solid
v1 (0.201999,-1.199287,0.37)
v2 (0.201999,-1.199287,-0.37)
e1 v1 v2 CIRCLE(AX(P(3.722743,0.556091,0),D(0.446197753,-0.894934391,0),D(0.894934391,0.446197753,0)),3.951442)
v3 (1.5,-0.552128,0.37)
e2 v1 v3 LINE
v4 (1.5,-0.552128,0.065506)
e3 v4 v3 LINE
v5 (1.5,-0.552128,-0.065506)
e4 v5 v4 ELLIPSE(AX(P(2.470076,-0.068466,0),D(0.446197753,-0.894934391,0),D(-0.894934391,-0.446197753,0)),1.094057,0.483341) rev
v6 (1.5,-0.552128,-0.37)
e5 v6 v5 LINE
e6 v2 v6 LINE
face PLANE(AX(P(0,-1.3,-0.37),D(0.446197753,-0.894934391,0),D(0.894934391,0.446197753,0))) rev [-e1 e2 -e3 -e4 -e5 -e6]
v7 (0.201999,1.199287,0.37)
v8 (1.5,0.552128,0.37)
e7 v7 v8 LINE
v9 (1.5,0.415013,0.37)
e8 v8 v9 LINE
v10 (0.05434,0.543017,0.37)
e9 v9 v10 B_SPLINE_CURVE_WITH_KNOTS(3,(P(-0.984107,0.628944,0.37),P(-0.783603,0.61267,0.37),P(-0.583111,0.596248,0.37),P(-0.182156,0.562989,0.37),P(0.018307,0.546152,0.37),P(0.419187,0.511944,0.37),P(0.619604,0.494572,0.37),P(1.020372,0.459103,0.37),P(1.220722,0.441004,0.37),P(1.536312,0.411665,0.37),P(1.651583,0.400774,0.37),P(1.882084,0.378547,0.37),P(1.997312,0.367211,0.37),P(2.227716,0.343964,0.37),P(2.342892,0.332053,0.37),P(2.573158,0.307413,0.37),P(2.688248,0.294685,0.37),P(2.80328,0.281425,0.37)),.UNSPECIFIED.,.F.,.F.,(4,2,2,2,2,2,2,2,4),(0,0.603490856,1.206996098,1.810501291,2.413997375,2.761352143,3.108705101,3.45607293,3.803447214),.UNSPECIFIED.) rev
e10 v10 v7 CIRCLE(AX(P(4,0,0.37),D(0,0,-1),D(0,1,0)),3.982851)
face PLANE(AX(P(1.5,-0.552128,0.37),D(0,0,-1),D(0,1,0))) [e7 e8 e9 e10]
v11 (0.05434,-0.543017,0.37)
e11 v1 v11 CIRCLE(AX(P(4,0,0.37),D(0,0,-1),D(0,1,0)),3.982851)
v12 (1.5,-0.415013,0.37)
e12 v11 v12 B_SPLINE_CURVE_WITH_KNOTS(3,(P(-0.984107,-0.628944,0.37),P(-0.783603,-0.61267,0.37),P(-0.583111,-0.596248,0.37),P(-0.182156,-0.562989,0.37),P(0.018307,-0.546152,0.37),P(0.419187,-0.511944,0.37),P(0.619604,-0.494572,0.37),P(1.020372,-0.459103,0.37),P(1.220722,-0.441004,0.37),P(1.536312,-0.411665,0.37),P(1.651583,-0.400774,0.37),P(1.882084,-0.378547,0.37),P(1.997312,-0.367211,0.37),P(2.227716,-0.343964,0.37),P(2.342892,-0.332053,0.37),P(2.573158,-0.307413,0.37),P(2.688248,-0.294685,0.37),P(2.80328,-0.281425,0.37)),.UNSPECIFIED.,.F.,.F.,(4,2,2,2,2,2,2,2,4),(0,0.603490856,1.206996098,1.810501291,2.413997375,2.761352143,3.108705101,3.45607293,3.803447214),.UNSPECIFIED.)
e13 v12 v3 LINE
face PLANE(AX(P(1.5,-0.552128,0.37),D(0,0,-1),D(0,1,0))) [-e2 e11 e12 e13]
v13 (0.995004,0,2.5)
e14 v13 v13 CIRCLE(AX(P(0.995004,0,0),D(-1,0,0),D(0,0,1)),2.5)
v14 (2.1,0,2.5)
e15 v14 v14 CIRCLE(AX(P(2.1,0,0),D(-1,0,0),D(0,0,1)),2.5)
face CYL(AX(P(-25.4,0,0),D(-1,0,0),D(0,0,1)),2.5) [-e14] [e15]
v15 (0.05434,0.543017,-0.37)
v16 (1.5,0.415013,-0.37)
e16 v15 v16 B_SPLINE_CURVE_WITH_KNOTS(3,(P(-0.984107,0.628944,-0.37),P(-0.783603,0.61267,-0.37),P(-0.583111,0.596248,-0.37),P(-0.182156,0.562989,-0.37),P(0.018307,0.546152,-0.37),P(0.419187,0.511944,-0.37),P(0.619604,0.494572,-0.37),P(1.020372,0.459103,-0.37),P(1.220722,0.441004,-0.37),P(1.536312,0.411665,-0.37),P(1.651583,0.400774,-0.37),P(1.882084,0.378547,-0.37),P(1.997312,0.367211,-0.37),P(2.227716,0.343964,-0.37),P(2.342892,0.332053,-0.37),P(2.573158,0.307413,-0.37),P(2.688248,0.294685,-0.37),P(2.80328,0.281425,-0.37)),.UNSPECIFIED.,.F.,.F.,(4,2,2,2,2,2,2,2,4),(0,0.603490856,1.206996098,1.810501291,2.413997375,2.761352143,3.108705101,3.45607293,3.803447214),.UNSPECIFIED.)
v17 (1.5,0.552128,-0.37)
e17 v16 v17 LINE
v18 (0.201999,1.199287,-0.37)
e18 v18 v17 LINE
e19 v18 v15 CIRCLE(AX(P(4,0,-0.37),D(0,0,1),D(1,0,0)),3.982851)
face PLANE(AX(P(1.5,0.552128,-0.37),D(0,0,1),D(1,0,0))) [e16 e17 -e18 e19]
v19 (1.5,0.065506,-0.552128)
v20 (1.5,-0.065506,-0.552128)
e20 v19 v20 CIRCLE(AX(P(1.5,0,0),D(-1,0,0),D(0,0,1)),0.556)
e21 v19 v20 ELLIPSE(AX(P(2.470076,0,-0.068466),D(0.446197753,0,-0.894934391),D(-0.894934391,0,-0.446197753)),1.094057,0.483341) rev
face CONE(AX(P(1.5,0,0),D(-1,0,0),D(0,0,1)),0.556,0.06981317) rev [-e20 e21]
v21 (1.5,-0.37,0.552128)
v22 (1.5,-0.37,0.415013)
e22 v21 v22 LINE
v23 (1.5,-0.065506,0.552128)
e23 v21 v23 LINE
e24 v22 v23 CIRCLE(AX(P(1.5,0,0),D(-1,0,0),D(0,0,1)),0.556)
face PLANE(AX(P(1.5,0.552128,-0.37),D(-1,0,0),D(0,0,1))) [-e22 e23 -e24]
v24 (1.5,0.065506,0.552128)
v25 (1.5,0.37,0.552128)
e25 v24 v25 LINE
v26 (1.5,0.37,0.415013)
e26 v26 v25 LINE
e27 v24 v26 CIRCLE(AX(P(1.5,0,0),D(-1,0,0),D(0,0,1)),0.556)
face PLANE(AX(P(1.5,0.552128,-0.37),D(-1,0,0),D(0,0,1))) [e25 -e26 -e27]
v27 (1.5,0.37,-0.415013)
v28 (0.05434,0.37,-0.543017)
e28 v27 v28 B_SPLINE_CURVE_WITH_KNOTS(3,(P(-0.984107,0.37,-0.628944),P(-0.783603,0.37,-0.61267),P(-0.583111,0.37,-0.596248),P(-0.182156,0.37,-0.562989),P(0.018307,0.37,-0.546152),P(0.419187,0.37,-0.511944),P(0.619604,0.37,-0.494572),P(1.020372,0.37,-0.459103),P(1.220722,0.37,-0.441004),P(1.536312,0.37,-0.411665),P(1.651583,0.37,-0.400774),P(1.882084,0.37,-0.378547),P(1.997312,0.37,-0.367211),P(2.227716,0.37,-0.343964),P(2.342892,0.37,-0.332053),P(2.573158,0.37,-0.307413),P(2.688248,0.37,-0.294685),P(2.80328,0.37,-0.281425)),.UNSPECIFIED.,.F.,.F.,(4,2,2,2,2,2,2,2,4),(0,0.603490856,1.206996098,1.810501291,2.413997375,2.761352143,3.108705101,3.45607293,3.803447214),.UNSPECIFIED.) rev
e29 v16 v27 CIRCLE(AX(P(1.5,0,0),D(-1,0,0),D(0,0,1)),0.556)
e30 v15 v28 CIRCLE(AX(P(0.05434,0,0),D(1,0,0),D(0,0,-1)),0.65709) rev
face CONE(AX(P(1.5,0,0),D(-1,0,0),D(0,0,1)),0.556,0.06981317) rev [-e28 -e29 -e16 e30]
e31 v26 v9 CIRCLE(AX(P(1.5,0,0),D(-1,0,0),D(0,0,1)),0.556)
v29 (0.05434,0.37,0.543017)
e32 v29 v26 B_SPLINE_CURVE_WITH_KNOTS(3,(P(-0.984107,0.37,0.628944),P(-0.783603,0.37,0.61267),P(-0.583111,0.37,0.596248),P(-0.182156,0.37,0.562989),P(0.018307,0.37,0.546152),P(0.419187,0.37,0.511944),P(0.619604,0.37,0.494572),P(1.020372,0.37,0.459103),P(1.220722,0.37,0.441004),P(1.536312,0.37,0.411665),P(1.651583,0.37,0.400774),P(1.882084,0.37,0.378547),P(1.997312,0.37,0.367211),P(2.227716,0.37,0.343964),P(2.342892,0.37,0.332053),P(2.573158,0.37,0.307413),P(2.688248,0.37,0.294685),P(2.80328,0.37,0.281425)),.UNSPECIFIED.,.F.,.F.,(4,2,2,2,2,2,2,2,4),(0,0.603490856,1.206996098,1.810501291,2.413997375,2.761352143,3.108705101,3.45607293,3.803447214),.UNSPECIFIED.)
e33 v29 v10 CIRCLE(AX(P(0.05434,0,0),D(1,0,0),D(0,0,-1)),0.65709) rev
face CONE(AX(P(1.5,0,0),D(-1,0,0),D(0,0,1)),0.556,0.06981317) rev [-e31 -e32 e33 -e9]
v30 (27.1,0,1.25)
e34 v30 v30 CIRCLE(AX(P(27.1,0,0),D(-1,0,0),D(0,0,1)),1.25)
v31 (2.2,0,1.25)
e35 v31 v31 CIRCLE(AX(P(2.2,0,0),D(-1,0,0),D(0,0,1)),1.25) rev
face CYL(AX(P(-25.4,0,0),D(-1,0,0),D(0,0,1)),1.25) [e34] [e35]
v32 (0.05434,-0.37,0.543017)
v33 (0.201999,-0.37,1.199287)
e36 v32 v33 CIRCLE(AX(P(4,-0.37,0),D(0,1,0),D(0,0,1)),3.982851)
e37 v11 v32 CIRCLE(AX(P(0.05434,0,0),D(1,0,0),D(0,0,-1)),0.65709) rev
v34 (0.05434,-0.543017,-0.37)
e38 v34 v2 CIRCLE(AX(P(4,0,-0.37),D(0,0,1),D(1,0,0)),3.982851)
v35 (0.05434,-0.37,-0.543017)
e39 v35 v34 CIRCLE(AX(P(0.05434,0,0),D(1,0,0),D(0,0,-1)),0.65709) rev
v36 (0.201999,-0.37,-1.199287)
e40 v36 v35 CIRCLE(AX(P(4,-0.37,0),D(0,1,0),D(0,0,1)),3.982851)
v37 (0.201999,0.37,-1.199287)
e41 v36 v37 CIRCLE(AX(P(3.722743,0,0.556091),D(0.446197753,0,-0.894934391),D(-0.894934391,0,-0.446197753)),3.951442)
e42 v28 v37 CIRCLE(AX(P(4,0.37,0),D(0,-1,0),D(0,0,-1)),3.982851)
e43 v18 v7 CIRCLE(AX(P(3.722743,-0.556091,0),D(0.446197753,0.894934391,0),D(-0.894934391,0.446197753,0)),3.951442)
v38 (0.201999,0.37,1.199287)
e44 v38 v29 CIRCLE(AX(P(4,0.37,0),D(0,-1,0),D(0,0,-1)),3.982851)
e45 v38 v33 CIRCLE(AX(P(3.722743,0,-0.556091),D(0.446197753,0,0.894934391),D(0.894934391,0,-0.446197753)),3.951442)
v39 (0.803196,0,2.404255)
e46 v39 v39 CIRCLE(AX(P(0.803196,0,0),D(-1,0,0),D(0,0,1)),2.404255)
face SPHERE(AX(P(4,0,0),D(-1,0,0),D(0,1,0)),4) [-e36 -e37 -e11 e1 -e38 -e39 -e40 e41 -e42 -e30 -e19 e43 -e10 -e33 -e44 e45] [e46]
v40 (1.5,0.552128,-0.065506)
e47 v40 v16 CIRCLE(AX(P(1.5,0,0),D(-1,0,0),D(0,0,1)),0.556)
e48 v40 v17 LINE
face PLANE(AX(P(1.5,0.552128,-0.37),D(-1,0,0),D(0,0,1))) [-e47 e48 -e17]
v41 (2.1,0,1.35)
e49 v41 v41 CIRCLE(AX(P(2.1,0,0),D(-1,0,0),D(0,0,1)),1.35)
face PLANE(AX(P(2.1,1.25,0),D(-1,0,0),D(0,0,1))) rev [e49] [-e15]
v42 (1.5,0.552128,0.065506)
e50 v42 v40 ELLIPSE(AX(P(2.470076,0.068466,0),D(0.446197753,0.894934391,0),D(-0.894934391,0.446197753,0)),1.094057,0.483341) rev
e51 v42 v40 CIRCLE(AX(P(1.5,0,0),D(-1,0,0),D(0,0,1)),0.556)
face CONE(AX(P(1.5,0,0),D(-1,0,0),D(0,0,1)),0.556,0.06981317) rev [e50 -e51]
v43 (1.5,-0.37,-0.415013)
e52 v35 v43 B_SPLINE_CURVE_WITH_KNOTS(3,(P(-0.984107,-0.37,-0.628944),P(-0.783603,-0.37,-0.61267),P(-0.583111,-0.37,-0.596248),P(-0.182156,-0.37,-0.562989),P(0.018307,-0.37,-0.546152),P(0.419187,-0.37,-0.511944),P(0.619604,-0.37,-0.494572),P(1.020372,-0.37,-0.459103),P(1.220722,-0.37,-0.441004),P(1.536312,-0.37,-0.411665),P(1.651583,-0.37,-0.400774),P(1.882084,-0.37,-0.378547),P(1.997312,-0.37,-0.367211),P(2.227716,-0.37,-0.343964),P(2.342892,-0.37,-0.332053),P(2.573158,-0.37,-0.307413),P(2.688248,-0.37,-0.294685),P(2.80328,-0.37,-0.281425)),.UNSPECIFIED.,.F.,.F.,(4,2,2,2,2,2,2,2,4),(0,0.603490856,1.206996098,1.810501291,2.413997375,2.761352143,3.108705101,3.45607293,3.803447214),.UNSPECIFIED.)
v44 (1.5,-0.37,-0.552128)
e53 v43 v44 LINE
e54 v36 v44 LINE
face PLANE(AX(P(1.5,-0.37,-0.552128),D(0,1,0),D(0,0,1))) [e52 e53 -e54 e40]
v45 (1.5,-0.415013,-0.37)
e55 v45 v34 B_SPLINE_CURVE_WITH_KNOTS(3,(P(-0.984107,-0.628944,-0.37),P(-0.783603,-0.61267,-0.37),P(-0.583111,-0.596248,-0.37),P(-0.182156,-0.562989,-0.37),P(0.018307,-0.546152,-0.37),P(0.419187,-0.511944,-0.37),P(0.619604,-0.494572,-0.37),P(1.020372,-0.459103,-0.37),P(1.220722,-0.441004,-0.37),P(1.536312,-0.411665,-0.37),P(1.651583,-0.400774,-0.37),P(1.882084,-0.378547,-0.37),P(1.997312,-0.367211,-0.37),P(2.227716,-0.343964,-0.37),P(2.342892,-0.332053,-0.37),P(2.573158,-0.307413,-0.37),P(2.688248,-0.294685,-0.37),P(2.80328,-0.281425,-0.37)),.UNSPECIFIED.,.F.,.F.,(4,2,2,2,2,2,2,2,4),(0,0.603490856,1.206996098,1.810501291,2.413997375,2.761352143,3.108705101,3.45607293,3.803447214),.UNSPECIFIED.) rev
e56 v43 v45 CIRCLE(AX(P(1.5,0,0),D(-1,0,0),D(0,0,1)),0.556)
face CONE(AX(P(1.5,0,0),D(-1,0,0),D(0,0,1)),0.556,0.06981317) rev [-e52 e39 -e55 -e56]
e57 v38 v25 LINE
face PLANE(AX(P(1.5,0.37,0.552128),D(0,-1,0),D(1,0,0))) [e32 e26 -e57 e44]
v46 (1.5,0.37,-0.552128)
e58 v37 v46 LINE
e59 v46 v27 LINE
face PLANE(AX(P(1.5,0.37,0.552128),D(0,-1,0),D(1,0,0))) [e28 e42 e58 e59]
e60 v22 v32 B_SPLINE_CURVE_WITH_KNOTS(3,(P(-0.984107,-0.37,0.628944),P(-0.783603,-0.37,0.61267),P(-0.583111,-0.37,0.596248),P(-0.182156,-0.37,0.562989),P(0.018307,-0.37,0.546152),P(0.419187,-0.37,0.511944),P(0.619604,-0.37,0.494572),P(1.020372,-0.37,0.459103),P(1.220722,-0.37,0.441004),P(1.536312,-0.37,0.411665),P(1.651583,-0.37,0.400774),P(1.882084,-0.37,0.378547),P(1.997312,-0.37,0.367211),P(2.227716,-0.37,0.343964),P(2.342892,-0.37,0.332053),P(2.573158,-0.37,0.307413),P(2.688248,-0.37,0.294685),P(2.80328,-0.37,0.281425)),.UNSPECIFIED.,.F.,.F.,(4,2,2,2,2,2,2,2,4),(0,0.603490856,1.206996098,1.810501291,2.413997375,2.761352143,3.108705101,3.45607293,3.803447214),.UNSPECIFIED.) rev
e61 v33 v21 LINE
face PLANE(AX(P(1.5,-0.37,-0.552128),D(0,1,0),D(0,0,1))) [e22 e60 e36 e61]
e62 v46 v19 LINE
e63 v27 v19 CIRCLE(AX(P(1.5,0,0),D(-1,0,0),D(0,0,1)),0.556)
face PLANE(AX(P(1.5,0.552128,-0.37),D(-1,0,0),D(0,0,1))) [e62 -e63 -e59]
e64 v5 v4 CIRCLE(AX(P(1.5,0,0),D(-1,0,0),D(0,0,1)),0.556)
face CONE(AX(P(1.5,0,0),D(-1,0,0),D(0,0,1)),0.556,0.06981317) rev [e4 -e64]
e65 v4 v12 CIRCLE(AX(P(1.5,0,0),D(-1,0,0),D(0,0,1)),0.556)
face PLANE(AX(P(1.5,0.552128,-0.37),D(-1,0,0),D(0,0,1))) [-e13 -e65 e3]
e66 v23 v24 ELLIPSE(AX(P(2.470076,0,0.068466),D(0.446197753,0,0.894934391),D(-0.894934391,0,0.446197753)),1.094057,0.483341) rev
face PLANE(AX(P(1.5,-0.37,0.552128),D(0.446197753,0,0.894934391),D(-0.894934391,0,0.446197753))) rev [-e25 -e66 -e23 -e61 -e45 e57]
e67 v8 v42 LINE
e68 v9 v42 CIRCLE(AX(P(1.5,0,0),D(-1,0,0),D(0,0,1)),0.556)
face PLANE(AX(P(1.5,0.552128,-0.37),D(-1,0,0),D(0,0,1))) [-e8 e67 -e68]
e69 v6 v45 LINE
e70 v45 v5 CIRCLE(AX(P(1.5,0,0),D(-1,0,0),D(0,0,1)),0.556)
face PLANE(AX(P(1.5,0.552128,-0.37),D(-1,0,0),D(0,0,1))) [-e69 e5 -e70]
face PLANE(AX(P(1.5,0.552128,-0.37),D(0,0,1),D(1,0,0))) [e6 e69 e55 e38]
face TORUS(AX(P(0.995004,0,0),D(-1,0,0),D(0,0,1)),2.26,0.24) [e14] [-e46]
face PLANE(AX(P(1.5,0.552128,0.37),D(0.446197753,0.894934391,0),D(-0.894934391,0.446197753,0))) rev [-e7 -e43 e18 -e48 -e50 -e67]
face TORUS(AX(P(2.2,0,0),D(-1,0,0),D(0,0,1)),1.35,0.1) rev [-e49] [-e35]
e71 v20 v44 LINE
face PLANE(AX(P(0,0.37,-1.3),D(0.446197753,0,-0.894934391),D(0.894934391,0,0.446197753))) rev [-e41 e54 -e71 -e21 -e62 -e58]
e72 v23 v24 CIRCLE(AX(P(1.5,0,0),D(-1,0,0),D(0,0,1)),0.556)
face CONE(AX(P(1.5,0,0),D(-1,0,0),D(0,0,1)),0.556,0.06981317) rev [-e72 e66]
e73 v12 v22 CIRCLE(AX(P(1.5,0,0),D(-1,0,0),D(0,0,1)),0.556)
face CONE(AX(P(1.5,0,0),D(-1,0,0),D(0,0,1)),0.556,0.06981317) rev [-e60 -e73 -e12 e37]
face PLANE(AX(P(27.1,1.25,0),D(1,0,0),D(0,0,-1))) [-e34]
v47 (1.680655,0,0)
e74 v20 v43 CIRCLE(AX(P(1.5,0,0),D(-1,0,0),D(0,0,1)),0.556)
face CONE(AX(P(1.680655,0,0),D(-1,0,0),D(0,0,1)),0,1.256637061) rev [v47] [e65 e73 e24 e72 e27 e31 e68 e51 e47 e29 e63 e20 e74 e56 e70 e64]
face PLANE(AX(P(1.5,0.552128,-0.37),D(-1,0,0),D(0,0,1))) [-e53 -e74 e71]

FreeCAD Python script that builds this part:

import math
import FreeCAD as App
import Part
import Sketcher
from FreeCAD import Vector
Q = App.Units.Quantity


def edges_at(feature, points):
    """Names of the edges that pass closest to the given points."""
    edges = feature.Shape.Edges
    near = lambda p: min(range(len(edges)), key=lambda i: edges[i].distToShape(Part.Vertex(*p))[0])
    return sorted({f"Edge{near(p) + 1}" for p in points})

doc = App.newDocument("Part")
body = doc.addObject("PartDesign::Body", "Body")

sketch1 = body.newObject("Sketcher::SketchObject", "Sketch")
sketch1.AttachmentSupport = (doc.getObject("XY_Plane"), [""])
sketch1.MapMode = "FlatFace"
sketch1.addGeometry([
    Part.LineSegment(Vector(2.1, 1.25, 0), Vector(2.1, 2.5, 0)),
    Part.LineSegment(Vector(2.1, 2.5, 0), Vector(1, 2.5, 0)),
    Part.ArcOfCircle(Part.Circle(Vector(1, 2.26, 0), Vector(0, 0, 1), 0.24), math.radians(90), math.radians(143)),
    Part.ArcOfCircle(Part.Circle(Vector(4, 0, 0), Vector(0, 0, 1), 4), math.radians(143), math.radians(180)),
    Part.LineSegment(Vector(0, 0, 0), Vector(27.1, 0, 0)),
    Part.LineSegment(Vector(27.1, 0, 0), Vector(27.1, 1.25, 0)),
    Part.LineSegment(Vector(27.1, 1.25, 0), Vector(2.1, 1.25, 0)),
], False)
sketch1.addConstraint([
    Sketcher.Constraint("Coincident", 0, 2, 1, 1),
    Sketcher.Constraint("Tangent", 1, 2, 2, 1),
    Sketcher.Constraint("Tangent", 2, 2, 3, 1),
    Sketcher.Constraint("Coincident", 3, 2, 4, 1),
    Sketcher.Constraint("Coincident", 4, 2, 5, 1),
    Sketcher.Constraint("Coincident", 5, 2, 6, 1),
    Sketcher.Constraint("Coincident", 6, 2, 0, 1),
    Sketcher.Constraint("Vertical", 0),
    Sketcher.Constraint("Horizontal", 1),
    Sketcher.Constraint("Horizontal", 4),
    Sketcher.Constraint("Vertical", 5),
    Sketcher.Constraint("Horizontal", 6),
    Sketcher.Constraint("Coincident", 3, 2, -1, 1),
    Sketcher.Constraint("PointOnObject", 3, 3, -1),
    Sketcher.Constraint("Equal", 0, 5),
    Sketcher.Constraint("Radius", 3, Q("4 mm")),
    Sketcher.Constraint("DistanceX", 6, 2, 6, 1, Q("25 mm")),
    Sketcher.Constraint("Radius", 2, Q("0.24 mm")),
    Sketcher.Constraint("DistanceX", 4, 1, 4, 2, Q("27.1 mm")),
    Sketcher.Constraint("DistanceY", 0, 1, 0, 2, Q("1.25 mm")),
])
revolution = body.newObject("PartDesign::Revolution", "Revolution")
revolution.Profile = sketch1
revolution.ReferenceAxis = (sketch1, ["H_Axis"])
revolution.Angle = 360
doc.recompute()

fillet = body.newObject("PartDesign::Fillet", "Fillet")
fillet.Base = (revolution, edges_at(revolution, [(2.1, -1.25, 0)]))
fillet.Radius = 0.1

sketch2 = body.newObject("Sketcher::SketchObject", "Sketch001")
sketch2.AttachmentSupport = (doc.getObject("YZ_Plane"), [""])
sketch2.MapMode = "FlatFace"
sketch2.addGeometry([
    Part.LineSegment(Vector(1.3, 0.4, 0), Vector(-1.3, 0.4, 0)),
    Part.LineSegment(Vector(-1.3, 0.4, 0), Vector(-1.3, -0.4, 0)),
    Part.LineSegment(Vector(-1.3, -0.4, 0), Vector(1.3, -0.4, 0)),
    Part.LineSegment(Vector(1.3, -0.4, 0), Vector(1.3, 0.4, 0)),
], False)
sketch2.addConstraint([
    Sketcher.Constraint("Coincident", 0, 2, 1, 1),
    Sketcher.Constraint("Coincident", 1, 2, 2, 1),
    Sketcher.Constraint("Coincident", 2, 2, 3, 1),
    Sketcher.Constraint("Coincident", 3, 2, 0, 1),
    Sketcher.Constraint("Horizontal", 0),
    Sketcher.Constraint("Vertical", 1),
    Sketcher.Constraint("Horizontal", 2),
    Sketcher.Constraint("Vertical", 3),
    Sketcher.Constraint("Symmetric", 0, 2, 2, 2, -1, 1),
    Sketcher.Constraint("DistanceX", 0, 2, 0, 1, Q("2.6 mm")),
    Sketcher.Constraint("DistanceY", 1, 2, 1, 1, Q("0.74 mm")),
])

sketch3 = body.newObject("Sketcher::SketchObject", "Sketch002")
sketch3.AttachmentSupport = (doc.getObject("YZ_Plane"), [""])
sketch3.MapMode = "FlatFace"
sketch3.AttachmentOffset = App.Placement(Vector(0, 0, 1.5), App.Rotation())
sketch3.addGeometry([
    Part.LineSegment(Vector(0.6, 0.4, 0), Vector(-0.6, 0.4, 0)),
    Part.LineSegment(Vector(-0.6, 0.4, 0), Vector(-0.6, -0.4, 0)),
    Part.LineSegment(Vector(-0.6, -0.4, 0), Vector(0.6, -0.4, 0)),
    Part.LineSegment(Vector(0.6, -0.4, 0), Vector(0.6, 0.4, 0)),
], False)
sketch3.addConstraint([
    Sketcher.Constraint("Coincident", 0, 2, 1, 1),
    Sketcher.Constraint("Coincident", 1, 2, 2, 1),
    Sketcher.Constraint("Coincident", 2, 2, 3, 1),
    Sketcher.Constraint("Coincident", 3, 2, 0, 1),
    Sketcher.Constraint("Horizontal", 0),
    Sketcher.Constraint("Vertical", 1),
    Sketcher.Constraint("Horizontal", 2),
    Sketcher.Constraint("Vertical", 3),
    Sketcher.Constraint("Symmetric", 0, 2, 2, 2, -1, 1),
    Sketcher.Constraint("DistanceY", 1, 2, 1, 1, Q("0.74 mm")),
    Sketcher.Constraint("DistanceX", 0, 2, 0, 1, Q("1.104255 mm")),
])

subtractiveloft = body.newObject("PartDesign::SubtractiveLoft", "SubtractiveLoft")
subtractiveloft.Profile = sketch2
subtractiveloft.Sections = [sketch3]
doc.recompute()

polarpattern = body.newObject("PartDesign::PolarPattern", "PolarPattern")
polarpattern.Originals = [subtractiveloft]
polarpattern.Axis = (doc.getObject("X_Axis"), [""])
polarpattern.Angle = 90
polarpattern.Occurrences = 2
body.Tip = polarpattern

sketch4 = body.newObject("Sketcher::SketchObject", "Sketch003")
sketch4.AttachmentSupport = (doc.getObject("XY_Plane"), [""])
sketch4.MapMode = "FlatFace"
sketch4.addGeometry([
    Part.LineSegment(Vector(0, 0.7, 0), Vector(0, 0, 0)),
    Part.LineSegment(Vector(0, 0, 0), Vector(1.7, 0, 0)),
    Part.LineSegment(Vector(1.7, 0, 0), Vector(1.5, 0.6, 0)),
    Part.LineSegment(Vector(1.5, 0.6, 0), Vector(0, 0.7, 0)),
], False)
sketch4.addConstraint([
    Sketcher.Constraint("Coincident", 0, 2, 1, 1),
    Sketcher.Constraint("Coincident", 1, 2, 2, 1),
    Sketcher.Constraint("Coincident", 2, 2, 3, 1),
    Sketcher.Constraint("Coincident", 3, 2, 0, 1),
    Sketcher.Constraint("Vertical", 0),
    Sketcher.Constraint("Horizontal", 1),
    Sketcher.Constraint("Coincident", 0, 2, -1, 1),
    Sketcher.Constraint("Angle", 2, Q("108 deg")),
    Sketcher.Constraint("Angle", 3, Q("176 deg")),
    Sketcher.Constraint("DistanceX", -1, 1, 2, 2, Q("1.5 mm")),
    Sketcher.Constraint("DistanceY", -1, 1, 2, 2, Q("0.556 mm")),
])
groove = body.newObject("PartDesign::Groove", "Groove")
groove.Profile = sketch4
groove.ReferenceAxis = (sketch4, ["H_Axis"])
groove.Angle = 360

doc.recompute()
